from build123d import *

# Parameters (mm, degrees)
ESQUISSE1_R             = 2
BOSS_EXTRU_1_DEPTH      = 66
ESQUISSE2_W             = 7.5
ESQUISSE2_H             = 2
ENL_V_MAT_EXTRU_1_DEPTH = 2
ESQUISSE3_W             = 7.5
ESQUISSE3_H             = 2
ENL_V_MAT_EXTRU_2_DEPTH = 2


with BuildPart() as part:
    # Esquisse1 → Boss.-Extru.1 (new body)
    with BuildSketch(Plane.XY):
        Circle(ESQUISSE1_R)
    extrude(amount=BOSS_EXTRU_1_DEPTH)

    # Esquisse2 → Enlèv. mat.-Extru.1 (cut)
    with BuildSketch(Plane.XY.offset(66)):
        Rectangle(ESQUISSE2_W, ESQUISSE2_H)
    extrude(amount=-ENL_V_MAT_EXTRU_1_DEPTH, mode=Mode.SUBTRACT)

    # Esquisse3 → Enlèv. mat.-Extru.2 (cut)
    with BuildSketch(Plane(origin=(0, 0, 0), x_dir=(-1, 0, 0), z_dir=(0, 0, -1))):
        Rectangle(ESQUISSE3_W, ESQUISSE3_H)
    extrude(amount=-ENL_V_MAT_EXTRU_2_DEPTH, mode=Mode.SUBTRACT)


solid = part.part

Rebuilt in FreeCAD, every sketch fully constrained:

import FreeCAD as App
import Part
import Sketcher
from FreeCAD import Vector

doc = App.newDocument("Part")
params = doc.addObject("Spreadsheet::Sheet", "Params")
for row, (alias, value) in enumerate([
    ("sketch1_diameter", "4 mm"),
    ("pad1_length", "66 mm"),
    ("sketch2_height", "2 mm"),
    ("sketch2_width", "7.5 mm"),
    ("pocket1_length", "2 mm"),
    ("sketch3_height", "2 mm"),
    ("sketch3_width", "7.5 mm"),
    ("pocket2_length", "2 mm"),
], start=1):
    params.set(f"A{row}", alias)
    params.set(f"B{row}", "=" + value)
    params.setAlias(f"B{row}", alias)

body = doc.addObject("PartDesign::Body", "Body")

# Sketch on XY plane
sketch1 = body.newObject("Sketcher::SketchObject", "Sketch")
sketch1.AttachmentSupport = (doc.getObject("XY_Plane"), [""])
sketch1.MapMode = "FlatFace"
sketch1.addGeometry(Part.Circle(Vector(0, 0, 0), Vector(0, 0, 1), 2), False)
sketch1.addConstraint([
    Sketcher.Constraint("Coincident", 0, 3, -1, 1),
    Sketcher.Constraint("Diameter", 0, 4.0),
])
sketch1.setExpression("Constraints[1]", "Params.sketch1_diameter")
pad1 = body.newObject("PartDesign::Pad", "Pad")
pad1.Profile = sketch1
pad1.setExpression("Length", "Params.pad1_length")

# Sketch on XY plane
sketch2 = body.newObject("Sketcher::SketchObject", "Sketch001")
sketch2.AttachmentSupport = (doc.getObject("XY_Plane"), [""])
sketch2.MapMode = "FlatFace"
sketch2.AttachmentOffset = App.Placement(Vector(0, 0, 66), App.Rotation())
sketch2.addGeometry([
    Part.LineSegment(Vector(-3.8, 1, 0), Vector(-3.8, -1, 0)),
    Part.LineSegment(Vector(-3.8, -1, 0), Vector(3.8, -1, 0)),
    Part.LineSegment(Vector(3.8, -1, 0), Vector(3.8, 1, 0)),
    Part.LineSegment(Vector(3.8, 1, 0), Vector(-3.8, 1, 0)),
], False)
sketch2.addConstraint([
    Sketcher.Constraint("Coincident", 0, 2, 1, 1),
    Sketcher.Constraint("Coincident", 1, 2, 2, 1),
    Sketcher.Constraint("Coincident", 2, 2, 3, 1),
    Sketcher.Constraint("Coincident", 3, 2, 0, 1),
    Sketcher.Constraint("Vertical", 0),
    Sketcher.Constraint("Horizontal", 1),
    Sketcher.Constraint("Vertical", 2),
    Sketcher.Constraint("Horizontal", 3),
    Sketcher.Constraint("Symmetric", 0, 2, 2, 2, -1, 1),
    Sketcher.Constraint("DistanceY", 0, 2, 0, 1, 2.0),
    Sketcher.Constraint("DistanceX", 1, 1, 1, 2, 7.5),
])
sketch2.setExpression("Constraints[9]", "Params.sketch2_height")
sketch2.setExpression("Constraints[10]", "Params.sketch2_width")
pocket1 = body.newObject("PartDesign::Pocket", "Pocket")
pocket1.Profile = sketch2
pocket1.setExpression("Length", "Params.pocket1_length")

# Sketch on XY plane
sketch3 = body.newObject("Sketcher::SketchObject", "Sketch002")
sketch3.AttachmentSupport = (doc.getObject("XY_Plane"), [""])
sketch3.MapMode = "FlatFace"
sketch3.addGeometry([
    Part.LineSegment(Vector(3.8, 1, 0), Vector(3.8, -1, 0)),
    Part.LineSegment(Vector(3.8, -1, 0), Vector(-3.8, -1, 0)),
    Part.LineSegment(Vector(-3.8, -1, 0), Vector(-3.8, 1, 0)),
    Part.LineSegment(Vector(-3.8, 1, 0), Vector(3.8, 1, 0)),
], False)
sketch3.addConstraint([
    Sketcher.Constraint("Coincident", 0, 2, 1, 1),
    Sketcher.Constraint("Coincident", 1, 2, 2, 1),
    Sketcher.Constraint("Coincident", 2, 2, 3, 1),
    Sketcher.Constraint("Coincident", 3, 2, 0, 1),
    Sketcher.Constraint("Vertical", 0),
    Sketcher.Constraint("Horizontal", 1),
    Sketcher.Constraint("Vertical", 2),
    Sketcher.Constraint("Horizontal", 3),
    Sketcher.Constraint("Symmetric", 0, 2, 2, 2, -1, 1),
    Sketcher.Constraint("DistanceY", 0, 2, 0, 1, 2.0),
    Sketcher.Constraint("DistanceX", 1, 2, 1, 1, 7.5),
])
sketch3.setExpression("Constraints[9]", "Params.sketch3_height")
sketch3.setExpression("Constraints[10]", "Params.sketch3_width")
pocket2 = body.newObject("PartDesign::Pocket", "Pocket001")
pocket2.Profile = sketch3
pocket2.setExpression("Length", "Params.pocket2_length")
pocket2.Reversed = True

doc.recompute()
